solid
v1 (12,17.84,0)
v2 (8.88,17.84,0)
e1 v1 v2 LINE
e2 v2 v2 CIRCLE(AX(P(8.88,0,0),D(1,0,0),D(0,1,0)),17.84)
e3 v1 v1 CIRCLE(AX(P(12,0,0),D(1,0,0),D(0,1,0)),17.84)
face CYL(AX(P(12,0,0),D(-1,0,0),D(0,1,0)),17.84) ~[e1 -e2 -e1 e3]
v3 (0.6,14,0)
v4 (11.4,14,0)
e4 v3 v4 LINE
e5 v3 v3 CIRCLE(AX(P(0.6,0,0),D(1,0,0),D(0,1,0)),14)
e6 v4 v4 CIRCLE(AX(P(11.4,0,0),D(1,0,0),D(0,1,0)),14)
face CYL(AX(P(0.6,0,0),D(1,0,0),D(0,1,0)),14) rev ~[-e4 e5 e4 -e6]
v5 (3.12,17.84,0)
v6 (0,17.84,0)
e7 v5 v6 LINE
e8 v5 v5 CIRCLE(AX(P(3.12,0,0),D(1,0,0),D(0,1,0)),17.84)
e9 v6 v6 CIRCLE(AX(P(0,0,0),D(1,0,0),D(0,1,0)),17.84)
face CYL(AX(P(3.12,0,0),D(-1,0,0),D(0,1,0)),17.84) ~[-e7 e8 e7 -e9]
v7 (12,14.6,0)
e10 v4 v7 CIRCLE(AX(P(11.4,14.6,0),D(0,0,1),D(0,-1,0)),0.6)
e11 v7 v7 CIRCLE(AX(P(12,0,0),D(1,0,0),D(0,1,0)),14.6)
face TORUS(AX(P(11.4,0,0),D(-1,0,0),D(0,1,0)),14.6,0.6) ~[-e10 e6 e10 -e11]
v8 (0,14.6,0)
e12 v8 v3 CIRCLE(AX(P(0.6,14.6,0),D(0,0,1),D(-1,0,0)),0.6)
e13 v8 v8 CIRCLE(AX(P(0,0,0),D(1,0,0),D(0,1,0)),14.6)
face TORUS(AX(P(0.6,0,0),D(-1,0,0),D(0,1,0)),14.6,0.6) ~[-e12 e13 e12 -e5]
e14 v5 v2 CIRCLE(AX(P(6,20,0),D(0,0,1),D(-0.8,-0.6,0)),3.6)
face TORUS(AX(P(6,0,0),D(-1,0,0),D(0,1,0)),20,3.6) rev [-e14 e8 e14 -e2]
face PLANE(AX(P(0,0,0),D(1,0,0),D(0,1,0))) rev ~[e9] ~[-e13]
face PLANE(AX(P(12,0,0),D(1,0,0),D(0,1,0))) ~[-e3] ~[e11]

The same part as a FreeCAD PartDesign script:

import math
import FreeCAD as App
import Part
import Sketcher
from FreeCAD import Vector
Q = App.Units.Quantity

doc = App.newDocument("Part")
params = doc.addObject("Spreadsheet::Sheet", "Params")
for row, (alias, value) in enumerate([
    ("sketch1_radius", "0.6 mm"),
    ("sketch1_radius2", "3.6 mm"),
    ("sketch1_width", "10.8 mm"),
    ("sketch1_width2", "3.12 mm"),
    ("revolution_angle", "360 deg"),
], start=1):
    params.set(f"A{row}", alias)
    params.set(f"B{row}", "=" + value)
    params.setAlias(f"B{row}", alias)

body = doc.addObject("PartDesign::Body", "Body")

sketch1 = body.newObject("Sketcher::SketchObject", "Sketch")
sketch1.AttachmentSupport = (doc.getObject("XY_Plane"), [""])
sketch1.MapMode = "FlatFace"
sketch1.addGeometry(Part.LineSegment(Vector(0, 17.84, 0), Vector(0, 14.6, 0)), False)
sketch1.addGeometry(Part.ArcOfCircle(Part.Circle(Vector(0.6, 14.6, 0), Vector(0, 0, 1), 0.6), math.radians(180), math.radians(270)), False)
sketch1.addGeometry(Part.LineSegment(Vector(0.6, 14, 0), Vector(11.4, 14, 0)), False)
sketch1.addGeometry(Part.ArcOfCircle(Part.Circle(Vector(11.4, 14.6, 0), Vector(0, 0, 1), 0.6), math.radians(-90), math.radians(0)), False)
sketch1.addGeometry(Part.LineSegment(Vector(12, 14.6, 0), Vector(12, 17.84, 0)), False)
sketch1.addGeometry(Part.LineSegment(Vector(12, 17.84, 0), Vector(8.88, 17.84, 0)), False)
sketch1.addGeometry(Part.ArcOfCircle(Part.Circle(Vector(6, 20, 0), Vector(0, 0, 1), 3.6), math.radians(-143.130102), math.radians(-36.869898)), False)
sketch1.addGeometry(Part.LineSegment(Vector(3.12, 17.84, 0), Vector(0, 17.84, 0)), False)
sketch1.addConstraint(Sketcher.Constraint("Tangent", 0, 2, 1, 1))
sketch1.addConstraint(Sketcher.Constraint("Tangent", 1, 2, 2, 1))
sketch1.addConstraint(Sketcher.Constraint("Tangent", 2, 2, 3, 1))
sketch1.addConstraint(Sketcher.Constraint("Tangent", 3, 2, 4, 1))
sketch1.addConstraint(Sketcher.Constraint("Coincident", 4, 2, 5, 1))
sketch1.addConstraint(Sketcher.Constraint("Coincident", 5, 2, 6, 2))
sketch1.addConstraint(Sketcher.Constraint("Coincident", 6, 1, 7, 1))
sketch1.addConstraint(Sketcher.Constraint("Coincident", 7, 2, 0, 1))
sketch1.addConstraint(Sketcher.Constraint("Vertical", 0))
sketch1.addConstraint(Sketcher.Constraint("Horizontal", 2))
sketch1.addConstraint(Sketcher.Constraint("Vertical", 4))
sketch1.addConstraint(Sketcher.Constraint("Horizontal", 5))
sketch1.addConstraint(Sketcher.Constraint("Horizontal", 7))
sketch1.addConstraint(Sketcher.Constraint("Equal", 1, 3))
sketch1.addConstraint(Sketcher.Constraint("PointOnObject", 0, 2, -2))
sketch1.addConstraint(Sketcher.Constraint("Horizontal", 5, 2, 6, 1))
sketch1.addConstraint(Sketcher.Constraint("Equal", 5, 7))
sketch1.addConstraint(Sketcher.Constraint("Radius", 1, Q("0.6 mm")))
sketch1.addConstraint(Sketcher.Constraint("Radius", 6, Q("3.6 mm")))
sketch1.addConstraint(Sketcher.Constraint("DistanceX", 2, 1, 2, 2, Q("10.8 mm")))
sketch1.addConstraint(Sketcher.Constraint("DistanceY", -1, 1, 6, 3, Q("20 mm")))
sketch1.addConstraint(Sketcher.Constraint("DistanceY", -1, 1, 1, 2, Q("14 mm")))
sketch1.addConstraint(Sketcher.Constraint("DistanceX", 5, 2, 5, 1, Q("3.12 mm")))
sketch1.setExpression("Constraints[17]", "Params.sketch1_radius")
sketch1.setExpression("Constraints[18]", "Params.sketch1_radius2")
sketch1.setExpression("Constraints[19]", "Params.sketch1_width")
sketch1.setExpression("Constraints[22]", "Params.sketch1_width2")
revolution = body.newObject("PartDesign::Revolution", "Revolution")
revolution.Profile = sketch1
revolution.ReferenceAxis = (sketch1, ["H_Axis"])
revolution.setExpression("Angle", "Params.revolution_angle")

doc.recompute()
